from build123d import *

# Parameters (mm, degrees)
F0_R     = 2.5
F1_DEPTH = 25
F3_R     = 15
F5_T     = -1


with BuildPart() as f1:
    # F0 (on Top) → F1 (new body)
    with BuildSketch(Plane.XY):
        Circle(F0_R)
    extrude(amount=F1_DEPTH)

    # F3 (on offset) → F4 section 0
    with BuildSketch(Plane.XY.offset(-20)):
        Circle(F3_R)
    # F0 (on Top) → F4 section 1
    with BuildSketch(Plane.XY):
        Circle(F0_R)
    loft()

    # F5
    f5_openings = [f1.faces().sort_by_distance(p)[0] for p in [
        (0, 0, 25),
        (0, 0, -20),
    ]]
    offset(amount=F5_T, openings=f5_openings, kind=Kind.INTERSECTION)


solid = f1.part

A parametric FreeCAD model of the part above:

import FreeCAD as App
import Part
import Sketcher

V = App.Vector
Q = App.Units.Quantity


def faces_at(feature, points):
    """Names of the faces that lie closest to the given points."""
    faces = feature.Shape.Faces
    near = lambda p: min(range(len(faces)), key=lambda i: faces[i].distToShape(Part.Vertex(*p))[0])
    return sorted({f"Face{near(p) + 1}" for p in points})

doc = App.newDocument("Part")
body = doc.addObject("PartDesign::Body", "Body")

# Sketch on XY plane
sketch1 = body.newObject("Sketcher::SketchObject", "Sketch")
sketch1.AttachmentSupport = (doc.getObject("XY_Plane"), [""])
sketch1.MapMode = "FlatFace"
sketch1.addGeometry(Part.Circle(V(0, 0, 0), V(0, 0, 1), 2.5), False)
sketch1.addConstraint([
    Sketcher.Constraint("Coincident", 0, 3, -1, 1),
    Sketcher.Constraint("Diameter", 0, Q("5 mm")),
])
pad1 = body.newObject("PartDesign::Pad", "Pad")
pad1.Profile = sketch1
pad1.Length = 25

# Sketch on XY plane
sketch2 = body.newObject("Sketcher::SketchObject", "Sketch001")
sketch2.AttachmentSupport = (doc.getObject("XY_Plane"), [""])
sketch2.MapMode = "FlatFace"
sketch2.AttachmentOffset = App.Placement(V(0, 0, -20), App.Rotation())
sketch2.addGeometry(Part.Circle(V(0, 0, 0), V(0, 0, 1), 15), False)
sketch2.addConstraint([
    Sketcher.Constraint("Coincident", 0, 3, -1, 1),
    Sketcher.Constraint("Diameter", 0, Q("30 mm")),
])

# Sketch on XY plane
sketch3 = body.newObject("Sketcher::SketchObject", "Sketch002")
sketch3.AttachmentSupport = (doc.getObject("XY_Plane"), [""])
sketch3.MapMode = "FlatFace"
sketch3.addGeometry(Part.Circle(V(0, 0, 0), V(0, 0, 1), 2.5), False)
sketch3.addConstraint([
    Sketcher.Constraint("Coincident", 0, 3, -1, 1),
    Sketcher.Constraint("Diameter", 0, Q("5 mm")),
])

additiveloft = body.newObject("PartDesign::AdditiveLoft", "AdditiveLoft")
additiveloft.Profile = sketch2
additiveloft.Sections = [sketch3]
doc.recompute()

thickness = body.newObject("PartDesign::Thickness", "Thickness")
thickness.Base = (additiveloft, faces_at(additiveloft, [(0, 0, 25), (0, 0, -20)]))
thickness.Value = 1
thickness.Reversed = True
thickness.Join = "Intersection"

doc.recompute()
